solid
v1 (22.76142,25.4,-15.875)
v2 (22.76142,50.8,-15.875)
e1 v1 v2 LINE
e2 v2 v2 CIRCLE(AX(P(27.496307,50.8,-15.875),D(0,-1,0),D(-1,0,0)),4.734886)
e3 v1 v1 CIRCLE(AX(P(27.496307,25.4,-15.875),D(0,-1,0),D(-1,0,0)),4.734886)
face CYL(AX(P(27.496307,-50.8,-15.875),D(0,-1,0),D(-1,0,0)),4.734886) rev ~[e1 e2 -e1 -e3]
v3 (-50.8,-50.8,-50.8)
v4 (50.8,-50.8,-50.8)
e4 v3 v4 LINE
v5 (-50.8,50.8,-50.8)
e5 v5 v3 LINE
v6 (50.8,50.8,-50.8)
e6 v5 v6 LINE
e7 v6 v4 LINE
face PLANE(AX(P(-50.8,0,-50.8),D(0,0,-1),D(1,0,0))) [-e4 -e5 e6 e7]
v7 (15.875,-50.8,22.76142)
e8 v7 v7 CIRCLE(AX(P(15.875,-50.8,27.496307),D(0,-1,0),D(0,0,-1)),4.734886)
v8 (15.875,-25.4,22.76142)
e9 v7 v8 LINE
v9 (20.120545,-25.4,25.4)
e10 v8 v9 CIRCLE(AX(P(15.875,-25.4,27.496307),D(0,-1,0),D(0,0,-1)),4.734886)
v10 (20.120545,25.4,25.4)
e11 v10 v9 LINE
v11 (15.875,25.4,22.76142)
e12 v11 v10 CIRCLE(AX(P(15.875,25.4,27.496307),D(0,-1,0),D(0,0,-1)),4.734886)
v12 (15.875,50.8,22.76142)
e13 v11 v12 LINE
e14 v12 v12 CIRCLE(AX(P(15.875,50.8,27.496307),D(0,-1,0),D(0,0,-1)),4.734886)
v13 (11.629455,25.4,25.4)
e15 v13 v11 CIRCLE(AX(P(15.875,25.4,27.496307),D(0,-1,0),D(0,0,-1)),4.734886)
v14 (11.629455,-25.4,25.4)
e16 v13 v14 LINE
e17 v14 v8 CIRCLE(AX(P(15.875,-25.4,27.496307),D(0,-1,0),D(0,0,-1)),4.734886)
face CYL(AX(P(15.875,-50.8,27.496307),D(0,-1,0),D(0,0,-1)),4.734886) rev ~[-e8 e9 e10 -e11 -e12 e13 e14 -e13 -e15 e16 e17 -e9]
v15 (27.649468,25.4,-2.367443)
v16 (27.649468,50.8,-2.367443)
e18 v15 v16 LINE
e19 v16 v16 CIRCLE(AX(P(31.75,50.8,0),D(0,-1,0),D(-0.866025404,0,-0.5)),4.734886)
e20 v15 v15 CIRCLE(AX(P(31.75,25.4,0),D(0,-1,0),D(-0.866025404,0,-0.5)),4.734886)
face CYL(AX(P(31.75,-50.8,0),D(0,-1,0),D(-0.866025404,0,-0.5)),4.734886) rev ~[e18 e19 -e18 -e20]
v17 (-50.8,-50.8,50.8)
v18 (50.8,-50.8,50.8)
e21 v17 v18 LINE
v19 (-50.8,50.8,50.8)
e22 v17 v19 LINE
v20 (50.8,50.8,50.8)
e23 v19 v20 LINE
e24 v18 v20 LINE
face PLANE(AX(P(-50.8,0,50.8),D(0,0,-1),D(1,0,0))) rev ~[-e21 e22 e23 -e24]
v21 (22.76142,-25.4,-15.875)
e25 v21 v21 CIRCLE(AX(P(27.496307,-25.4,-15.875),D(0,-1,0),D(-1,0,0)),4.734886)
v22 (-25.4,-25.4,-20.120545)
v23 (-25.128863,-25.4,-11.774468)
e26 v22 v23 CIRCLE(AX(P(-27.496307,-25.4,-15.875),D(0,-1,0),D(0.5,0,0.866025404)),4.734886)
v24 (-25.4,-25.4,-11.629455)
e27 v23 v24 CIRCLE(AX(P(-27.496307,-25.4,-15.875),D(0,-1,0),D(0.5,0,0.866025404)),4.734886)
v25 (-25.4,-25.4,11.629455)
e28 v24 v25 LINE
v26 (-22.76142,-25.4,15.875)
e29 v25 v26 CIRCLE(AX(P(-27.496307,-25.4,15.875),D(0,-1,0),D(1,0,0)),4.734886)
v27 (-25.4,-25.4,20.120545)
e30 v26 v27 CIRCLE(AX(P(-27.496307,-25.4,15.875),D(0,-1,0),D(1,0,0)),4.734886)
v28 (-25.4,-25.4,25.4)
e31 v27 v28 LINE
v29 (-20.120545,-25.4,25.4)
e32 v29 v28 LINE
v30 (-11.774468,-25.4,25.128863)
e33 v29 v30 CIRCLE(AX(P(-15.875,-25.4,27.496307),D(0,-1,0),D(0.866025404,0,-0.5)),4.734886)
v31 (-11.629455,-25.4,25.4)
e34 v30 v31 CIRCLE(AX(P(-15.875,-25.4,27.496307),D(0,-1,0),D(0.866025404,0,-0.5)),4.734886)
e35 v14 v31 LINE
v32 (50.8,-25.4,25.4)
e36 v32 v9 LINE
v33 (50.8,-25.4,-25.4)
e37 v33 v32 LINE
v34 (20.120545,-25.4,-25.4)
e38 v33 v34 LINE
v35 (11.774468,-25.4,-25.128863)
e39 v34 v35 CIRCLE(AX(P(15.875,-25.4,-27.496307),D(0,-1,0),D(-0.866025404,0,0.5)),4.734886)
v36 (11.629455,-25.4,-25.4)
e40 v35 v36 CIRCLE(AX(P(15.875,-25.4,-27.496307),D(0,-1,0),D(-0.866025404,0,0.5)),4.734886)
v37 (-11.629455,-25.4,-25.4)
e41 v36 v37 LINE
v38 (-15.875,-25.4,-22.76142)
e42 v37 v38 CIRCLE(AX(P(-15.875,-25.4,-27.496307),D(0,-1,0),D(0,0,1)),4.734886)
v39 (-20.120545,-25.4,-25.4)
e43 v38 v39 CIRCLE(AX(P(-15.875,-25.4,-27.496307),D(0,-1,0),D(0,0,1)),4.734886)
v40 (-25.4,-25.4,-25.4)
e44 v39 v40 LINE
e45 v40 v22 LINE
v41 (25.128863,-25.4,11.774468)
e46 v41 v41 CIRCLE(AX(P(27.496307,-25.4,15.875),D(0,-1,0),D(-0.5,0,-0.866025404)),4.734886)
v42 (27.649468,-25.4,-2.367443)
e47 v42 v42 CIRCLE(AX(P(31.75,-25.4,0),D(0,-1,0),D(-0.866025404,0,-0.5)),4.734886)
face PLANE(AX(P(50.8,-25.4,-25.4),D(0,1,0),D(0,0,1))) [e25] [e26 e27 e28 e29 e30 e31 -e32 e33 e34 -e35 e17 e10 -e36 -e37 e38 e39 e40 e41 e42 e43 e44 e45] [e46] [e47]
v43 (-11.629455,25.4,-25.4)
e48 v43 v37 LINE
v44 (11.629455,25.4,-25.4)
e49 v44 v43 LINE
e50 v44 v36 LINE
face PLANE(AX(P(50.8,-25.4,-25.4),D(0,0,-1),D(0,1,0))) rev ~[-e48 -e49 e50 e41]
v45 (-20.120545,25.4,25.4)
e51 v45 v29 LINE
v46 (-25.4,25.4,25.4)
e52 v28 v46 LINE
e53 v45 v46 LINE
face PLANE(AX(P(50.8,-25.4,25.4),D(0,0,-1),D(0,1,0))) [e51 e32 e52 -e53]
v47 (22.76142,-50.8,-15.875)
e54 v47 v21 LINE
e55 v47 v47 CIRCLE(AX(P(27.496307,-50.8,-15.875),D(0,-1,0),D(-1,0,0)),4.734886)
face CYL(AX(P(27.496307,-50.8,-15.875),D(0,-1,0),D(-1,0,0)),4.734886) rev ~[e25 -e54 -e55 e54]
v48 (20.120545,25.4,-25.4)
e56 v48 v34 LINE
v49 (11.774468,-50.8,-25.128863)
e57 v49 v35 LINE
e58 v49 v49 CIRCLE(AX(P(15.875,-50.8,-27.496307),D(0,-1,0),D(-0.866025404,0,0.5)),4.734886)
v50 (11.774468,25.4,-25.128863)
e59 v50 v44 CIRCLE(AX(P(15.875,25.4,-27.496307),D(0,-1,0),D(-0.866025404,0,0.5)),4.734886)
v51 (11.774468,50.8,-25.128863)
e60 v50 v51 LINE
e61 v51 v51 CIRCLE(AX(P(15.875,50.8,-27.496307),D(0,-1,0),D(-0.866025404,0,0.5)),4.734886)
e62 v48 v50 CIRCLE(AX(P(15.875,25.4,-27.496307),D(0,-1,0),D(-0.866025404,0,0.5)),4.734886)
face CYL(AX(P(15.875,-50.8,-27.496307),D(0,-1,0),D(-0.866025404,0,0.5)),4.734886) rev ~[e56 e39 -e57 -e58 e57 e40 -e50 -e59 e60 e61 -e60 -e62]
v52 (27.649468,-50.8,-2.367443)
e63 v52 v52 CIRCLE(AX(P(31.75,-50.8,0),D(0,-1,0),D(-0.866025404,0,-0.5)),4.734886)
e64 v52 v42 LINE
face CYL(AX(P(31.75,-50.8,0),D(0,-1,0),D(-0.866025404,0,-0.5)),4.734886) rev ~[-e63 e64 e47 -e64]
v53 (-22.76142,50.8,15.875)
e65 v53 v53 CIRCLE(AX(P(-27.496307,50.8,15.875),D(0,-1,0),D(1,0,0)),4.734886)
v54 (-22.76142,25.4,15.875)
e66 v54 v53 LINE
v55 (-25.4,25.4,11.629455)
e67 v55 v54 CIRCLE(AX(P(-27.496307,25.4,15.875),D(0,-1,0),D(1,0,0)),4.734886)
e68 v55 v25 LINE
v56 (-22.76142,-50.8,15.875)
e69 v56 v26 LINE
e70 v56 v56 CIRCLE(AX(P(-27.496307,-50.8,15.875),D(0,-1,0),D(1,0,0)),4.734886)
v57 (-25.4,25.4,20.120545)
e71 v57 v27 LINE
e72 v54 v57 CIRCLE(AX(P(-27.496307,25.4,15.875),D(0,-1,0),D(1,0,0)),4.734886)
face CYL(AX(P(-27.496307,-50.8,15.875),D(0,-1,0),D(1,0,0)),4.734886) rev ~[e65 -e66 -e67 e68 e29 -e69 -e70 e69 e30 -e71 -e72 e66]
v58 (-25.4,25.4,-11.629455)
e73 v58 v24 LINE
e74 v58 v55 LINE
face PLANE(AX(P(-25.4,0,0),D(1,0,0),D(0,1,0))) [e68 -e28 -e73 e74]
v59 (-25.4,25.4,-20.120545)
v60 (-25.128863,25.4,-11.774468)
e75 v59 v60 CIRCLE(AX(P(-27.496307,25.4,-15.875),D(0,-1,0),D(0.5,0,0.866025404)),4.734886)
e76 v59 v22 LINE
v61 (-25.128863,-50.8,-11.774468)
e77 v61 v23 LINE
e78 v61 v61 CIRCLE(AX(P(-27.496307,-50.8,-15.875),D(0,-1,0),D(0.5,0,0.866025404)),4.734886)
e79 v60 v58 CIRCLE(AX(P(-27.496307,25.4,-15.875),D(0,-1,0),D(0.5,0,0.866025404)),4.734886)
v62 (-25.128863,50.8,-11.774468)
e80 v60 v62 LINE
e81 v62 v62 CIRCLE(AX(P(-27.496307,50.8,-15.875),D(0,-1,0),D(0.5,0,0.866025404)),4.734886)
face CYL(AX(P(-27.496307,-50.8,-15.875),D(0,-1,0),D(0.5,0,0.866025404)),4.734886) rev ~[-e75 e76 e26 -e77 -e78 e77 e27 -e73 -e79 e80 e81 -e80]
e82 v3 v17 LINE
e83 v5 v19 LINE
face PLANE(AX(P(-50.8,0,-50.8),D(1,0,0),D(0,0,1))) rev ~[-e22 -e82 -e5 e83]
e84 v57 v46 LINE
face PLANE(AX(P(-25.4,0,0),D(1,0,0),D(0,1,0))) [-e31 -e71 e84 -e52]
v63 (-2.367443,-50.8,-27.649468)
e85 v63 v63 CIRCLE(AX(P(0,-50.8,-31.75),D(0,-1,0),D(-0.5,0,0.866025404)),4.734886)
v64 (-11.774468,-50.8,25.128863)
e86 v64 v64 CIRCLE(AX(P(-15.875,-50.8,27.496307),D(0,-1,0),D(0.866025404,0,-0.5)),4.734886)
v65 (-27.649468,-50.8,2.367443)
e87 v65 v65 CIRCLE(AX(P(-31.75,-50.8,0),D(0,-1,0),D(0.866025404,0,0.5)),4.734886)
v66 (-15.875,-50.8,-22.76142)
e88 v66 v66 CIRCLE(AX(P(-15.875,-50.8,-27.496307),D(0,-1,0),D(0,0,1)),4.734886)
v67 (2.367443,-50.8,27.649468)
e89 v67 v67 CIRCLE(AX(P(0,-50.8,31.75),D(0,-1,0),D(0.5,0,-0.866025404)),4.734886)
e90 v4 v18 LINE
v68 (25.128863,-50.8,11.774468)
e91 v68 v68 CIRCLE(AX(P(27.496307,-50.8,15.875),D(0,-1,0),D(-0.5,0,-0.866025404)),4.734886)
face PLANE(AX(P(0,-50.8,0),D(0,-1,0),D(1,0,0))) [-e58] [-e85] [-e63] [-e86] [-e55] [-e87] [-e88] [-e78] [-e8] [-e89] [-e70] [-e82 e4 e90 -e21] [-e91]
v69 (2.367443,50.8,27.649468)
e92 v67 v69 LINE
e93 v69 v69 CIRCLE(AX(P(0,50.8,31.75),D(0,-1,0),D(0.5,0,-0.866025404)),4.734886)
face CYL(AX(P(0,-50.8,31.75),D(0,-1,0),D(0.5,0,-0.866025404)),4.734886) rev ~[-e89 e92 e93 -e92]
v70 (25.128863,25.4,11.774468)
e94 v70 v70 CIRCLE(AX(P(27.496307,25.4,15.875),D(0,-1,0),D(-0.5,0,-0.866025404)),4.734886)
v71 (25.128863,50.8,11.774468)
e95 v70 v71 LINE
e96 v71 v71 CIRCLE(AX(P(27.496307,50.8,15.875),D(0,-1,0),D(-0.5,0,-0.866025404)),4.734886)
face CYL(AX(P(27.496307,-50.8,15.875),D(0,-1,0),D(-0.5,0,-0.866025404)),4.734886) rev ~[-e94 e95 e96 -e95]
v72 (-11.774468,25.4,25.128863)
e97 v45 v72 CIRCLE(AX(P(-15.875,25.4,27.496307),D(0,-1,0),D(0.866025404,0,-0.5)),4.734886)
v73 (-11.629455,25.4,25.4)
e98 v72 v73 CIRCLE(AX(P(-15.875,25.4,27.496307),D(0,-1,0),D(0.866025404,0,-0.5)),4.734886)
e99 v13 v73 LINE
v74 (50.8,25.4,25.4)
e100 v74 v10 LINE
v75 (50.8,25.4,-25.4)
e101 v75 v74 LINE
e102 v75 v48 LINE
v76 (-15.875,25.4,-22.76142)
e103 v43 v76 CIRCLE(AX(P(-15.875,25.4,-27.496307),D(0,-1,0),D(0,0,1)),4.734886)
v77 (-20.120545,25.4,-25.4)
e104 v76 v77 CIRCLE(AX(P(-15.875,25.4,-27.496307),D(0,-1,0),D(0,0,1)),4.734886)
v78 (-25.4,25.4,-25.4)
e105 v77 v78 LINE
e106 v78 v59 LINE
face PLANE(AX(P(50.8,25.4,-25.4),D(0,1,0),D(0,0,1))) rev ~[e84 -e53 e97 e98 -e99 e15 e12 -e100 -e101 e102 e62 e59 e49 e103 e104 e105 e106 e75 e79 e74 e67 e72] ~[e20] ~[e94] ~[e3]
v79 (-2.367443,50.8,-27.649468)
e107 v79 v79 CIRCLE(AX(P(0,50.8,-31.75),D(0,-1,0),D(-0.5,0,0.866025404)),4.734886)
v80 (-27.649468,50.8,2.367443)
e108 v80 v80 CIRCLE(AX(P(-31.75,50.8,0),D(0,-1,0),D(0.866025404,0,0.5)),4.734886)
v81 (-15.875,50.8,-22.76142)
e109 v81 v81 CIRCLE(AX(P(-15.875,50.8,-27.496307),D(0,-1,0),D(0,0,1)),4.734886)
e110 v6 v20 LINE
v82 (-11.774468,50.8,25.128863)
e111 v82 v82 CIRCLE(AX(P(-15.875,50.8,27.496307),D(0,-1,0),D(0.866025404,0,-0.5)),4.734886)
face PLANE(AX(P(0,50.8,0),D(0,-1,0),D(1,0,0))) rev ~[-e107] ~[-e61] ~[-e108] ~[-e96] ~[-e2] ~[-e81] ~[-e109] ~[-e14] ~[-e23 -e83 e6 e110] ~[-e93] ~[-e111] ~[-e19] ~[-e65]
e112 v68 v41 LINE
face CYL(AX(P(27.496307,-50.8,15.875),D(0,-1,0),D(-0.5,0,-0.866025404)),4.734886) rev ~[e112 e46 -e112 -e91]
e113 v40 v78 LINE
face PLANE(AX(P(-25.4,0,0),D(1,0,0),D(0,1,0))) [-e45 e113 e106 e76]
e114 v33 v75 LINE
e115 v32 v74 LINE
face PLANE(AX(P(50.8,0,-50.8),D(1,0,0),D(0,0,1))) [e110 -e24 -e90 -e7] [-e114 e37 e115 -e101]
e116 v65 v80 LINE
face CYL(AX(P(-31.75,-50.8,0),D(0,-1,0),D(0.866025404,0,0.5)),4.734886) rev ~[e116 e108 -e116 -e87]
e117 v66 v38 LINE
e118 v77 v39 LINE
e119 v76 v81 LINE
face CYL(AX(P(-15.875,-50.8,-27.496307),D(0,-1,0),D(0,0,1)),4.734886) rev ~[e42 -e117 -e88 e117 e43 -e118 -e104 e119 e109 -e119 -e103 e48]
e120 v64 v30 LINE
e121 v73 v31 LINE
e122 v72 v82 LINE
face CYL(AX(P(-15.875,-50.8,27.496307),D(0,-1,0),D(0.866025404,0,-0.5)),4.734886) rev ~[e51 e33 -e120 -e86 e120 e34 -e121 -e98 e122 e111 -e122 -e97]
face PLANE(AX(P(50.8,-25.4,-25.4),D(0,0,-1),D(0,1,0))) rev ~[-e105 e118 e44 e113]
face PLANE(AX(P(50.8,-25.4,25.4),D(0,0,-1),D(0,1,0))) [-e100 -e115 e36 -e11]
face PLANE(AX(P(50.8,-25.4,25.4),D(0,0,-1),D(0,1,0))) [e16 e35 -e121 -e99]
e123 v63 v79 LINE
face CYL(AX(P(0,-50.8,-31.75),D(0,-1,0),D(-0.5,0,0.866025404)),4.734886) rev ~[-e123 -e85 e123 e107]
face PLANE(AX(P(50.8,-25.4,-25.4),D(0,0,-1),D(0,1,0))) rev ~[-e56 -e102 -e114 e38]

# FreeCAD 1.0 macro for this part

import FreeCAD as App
import Part
import Sketcher
from FreeCAD import Vector
Q = App.Units.Quantity


def add_polygon(sketch, points):
    """Adds a closed chain of lines whose ends are joined by coincident constraints."""
    first, n = sketch.GeometryCount, len(points)
    for a, b in zip(points, points[1:] + points[:1]):
        sketch.addGeometry(Part.LineSegment(App.Vector(*a, 0), App.Vector(*b, 0)), False)
    for i in range(n):
        sketch.addConstraint(Sketcher.Constraint("Coincident", first + i, 2, first + (i + 1) % n, 1))

doc = App.newDocument("Part")
body = doc.addObject("PartDesign::Body", "Body")

sketch1 = body.newObject("Sketcher::SketchObject", "Sketch")
sketch1.AttachmentSupport = (doc.getObject("XZ_Plane"), [""])
sketch1.MapMode = "FlatFace"
add_polygon(sketch1, [(-51, 51), (-51, -51), (51, -51), (51, 51)])
sketch1.addConstraint(Sketcher.Constraint("Vertical", 0))
sketch1.addConstraint(Sketcher.Constraint("Horizontal", 1))
sketch1.addConstraint(Sketcher.Constraint("Vertical", 2))
sketch1.addConstraint(Sketcher.Constraint("Horizontal", 3))
sketch1.addConstraint(Sketcher.Constraint("Symmetric", 0, 2, 2, 2, -1, 1))
sketch1.addConstraint(Sketcher.Constraint("Equal", 3, 0))
sketch1.addConstraint(Sketcher.Constraint("DistanceX", 1, 1, 1, 2, Q("4 in")))
pad1 = body.newObject("PartDesign::Pad", "Pad")
pad1.Profile = sketch1
pad1.Length = Q("4 in")
pad1.Midplane = True

sketch2 = body.newObject("Sketcher::SketchObject", "Sketch001")
sketch2.AttachmentSupport = (doc.getObject("XZ_Plane"), [""])
sketch2.MapMode = "FlatFace"
sketch2.AttachmentOffset = App.Placement(Vector(0, 0, 2 * 25.4), App.Rotation())
sketch2.addGeometry(Part.Circle(Vector(-27.5, 15.9, 0), Vector(0, 0, 1), 4.7), False)
sketch2.addConstraint(Sketcher.Constraint("DistanceY", -1, 1, 0, 3, Q("0.625 in")))
sketch2.addConstraint(Sketcher.Constraint("Diameter", 0, 9.469773))
sketch2.addConstraint(Sketcher.Constraint("DistanceX", 0, 3, -1, 1, 27.496307))
pocket1 = body.newObject("PartDesign::Pocket", "Pocket")
pocket1.Profile = sketch2
pocket1.Type = "ThroughAll"
doc.recompute()

polarpattern = body.newObject("PartDesign::PolarPattern", "PolarPattern")
polarpattern.Originals = [pocket1]
polarpattern.Axis = (doc.getObject("Y_Axis"), [""])
polarpattern.Angle = 360
polarpattern.Occurrences = 12
body.Tip = polarpattern

sketch3 = body.newObject("Sketcher::SketchObject", "Sketch002")
sketch3.AttachmentSupport = (doc.getObject("YZ_Plane"), [""])
sketch3.MapMode = "FlatFace"
sketch3.AttachmentOffset = App.Placement(Vector(0, 0, 2 * 25.4), App.Rotation())
add_polygon(sketch3, [(-25, 25), (-25, -25), (25, -25), (25, 25)])
sketch3.addConstraint(Sketcher.Constraint("Vertical", 0))
sketch3.addConstraint(Sketcher.Constraint("Horizontal", 1))
sketch3.addConstraint(Sketcher.Constraint("Vertical", 2))
sketch3.addConstraint(Sketcher.Constraint("Horizontal", 3))
sketch3.addConstraint(Sketcher.Constraint("Symmetric", 0, 2, 2, 2, -1, 1))
sketch3.addConstraint(Sketcher.Constraint("Equal", 3, 0))
sketch3.addConstraint(Sketcher.Constraint("DistanceX", 1, 1, 1, 2, Q("2 in")))
pocket2 = body.newObject("PartDesign::Pocket", "Pocket001")
pocket2.Profile = sketch3
pocket2.Length = Q("3 in")

doc.recompute()
